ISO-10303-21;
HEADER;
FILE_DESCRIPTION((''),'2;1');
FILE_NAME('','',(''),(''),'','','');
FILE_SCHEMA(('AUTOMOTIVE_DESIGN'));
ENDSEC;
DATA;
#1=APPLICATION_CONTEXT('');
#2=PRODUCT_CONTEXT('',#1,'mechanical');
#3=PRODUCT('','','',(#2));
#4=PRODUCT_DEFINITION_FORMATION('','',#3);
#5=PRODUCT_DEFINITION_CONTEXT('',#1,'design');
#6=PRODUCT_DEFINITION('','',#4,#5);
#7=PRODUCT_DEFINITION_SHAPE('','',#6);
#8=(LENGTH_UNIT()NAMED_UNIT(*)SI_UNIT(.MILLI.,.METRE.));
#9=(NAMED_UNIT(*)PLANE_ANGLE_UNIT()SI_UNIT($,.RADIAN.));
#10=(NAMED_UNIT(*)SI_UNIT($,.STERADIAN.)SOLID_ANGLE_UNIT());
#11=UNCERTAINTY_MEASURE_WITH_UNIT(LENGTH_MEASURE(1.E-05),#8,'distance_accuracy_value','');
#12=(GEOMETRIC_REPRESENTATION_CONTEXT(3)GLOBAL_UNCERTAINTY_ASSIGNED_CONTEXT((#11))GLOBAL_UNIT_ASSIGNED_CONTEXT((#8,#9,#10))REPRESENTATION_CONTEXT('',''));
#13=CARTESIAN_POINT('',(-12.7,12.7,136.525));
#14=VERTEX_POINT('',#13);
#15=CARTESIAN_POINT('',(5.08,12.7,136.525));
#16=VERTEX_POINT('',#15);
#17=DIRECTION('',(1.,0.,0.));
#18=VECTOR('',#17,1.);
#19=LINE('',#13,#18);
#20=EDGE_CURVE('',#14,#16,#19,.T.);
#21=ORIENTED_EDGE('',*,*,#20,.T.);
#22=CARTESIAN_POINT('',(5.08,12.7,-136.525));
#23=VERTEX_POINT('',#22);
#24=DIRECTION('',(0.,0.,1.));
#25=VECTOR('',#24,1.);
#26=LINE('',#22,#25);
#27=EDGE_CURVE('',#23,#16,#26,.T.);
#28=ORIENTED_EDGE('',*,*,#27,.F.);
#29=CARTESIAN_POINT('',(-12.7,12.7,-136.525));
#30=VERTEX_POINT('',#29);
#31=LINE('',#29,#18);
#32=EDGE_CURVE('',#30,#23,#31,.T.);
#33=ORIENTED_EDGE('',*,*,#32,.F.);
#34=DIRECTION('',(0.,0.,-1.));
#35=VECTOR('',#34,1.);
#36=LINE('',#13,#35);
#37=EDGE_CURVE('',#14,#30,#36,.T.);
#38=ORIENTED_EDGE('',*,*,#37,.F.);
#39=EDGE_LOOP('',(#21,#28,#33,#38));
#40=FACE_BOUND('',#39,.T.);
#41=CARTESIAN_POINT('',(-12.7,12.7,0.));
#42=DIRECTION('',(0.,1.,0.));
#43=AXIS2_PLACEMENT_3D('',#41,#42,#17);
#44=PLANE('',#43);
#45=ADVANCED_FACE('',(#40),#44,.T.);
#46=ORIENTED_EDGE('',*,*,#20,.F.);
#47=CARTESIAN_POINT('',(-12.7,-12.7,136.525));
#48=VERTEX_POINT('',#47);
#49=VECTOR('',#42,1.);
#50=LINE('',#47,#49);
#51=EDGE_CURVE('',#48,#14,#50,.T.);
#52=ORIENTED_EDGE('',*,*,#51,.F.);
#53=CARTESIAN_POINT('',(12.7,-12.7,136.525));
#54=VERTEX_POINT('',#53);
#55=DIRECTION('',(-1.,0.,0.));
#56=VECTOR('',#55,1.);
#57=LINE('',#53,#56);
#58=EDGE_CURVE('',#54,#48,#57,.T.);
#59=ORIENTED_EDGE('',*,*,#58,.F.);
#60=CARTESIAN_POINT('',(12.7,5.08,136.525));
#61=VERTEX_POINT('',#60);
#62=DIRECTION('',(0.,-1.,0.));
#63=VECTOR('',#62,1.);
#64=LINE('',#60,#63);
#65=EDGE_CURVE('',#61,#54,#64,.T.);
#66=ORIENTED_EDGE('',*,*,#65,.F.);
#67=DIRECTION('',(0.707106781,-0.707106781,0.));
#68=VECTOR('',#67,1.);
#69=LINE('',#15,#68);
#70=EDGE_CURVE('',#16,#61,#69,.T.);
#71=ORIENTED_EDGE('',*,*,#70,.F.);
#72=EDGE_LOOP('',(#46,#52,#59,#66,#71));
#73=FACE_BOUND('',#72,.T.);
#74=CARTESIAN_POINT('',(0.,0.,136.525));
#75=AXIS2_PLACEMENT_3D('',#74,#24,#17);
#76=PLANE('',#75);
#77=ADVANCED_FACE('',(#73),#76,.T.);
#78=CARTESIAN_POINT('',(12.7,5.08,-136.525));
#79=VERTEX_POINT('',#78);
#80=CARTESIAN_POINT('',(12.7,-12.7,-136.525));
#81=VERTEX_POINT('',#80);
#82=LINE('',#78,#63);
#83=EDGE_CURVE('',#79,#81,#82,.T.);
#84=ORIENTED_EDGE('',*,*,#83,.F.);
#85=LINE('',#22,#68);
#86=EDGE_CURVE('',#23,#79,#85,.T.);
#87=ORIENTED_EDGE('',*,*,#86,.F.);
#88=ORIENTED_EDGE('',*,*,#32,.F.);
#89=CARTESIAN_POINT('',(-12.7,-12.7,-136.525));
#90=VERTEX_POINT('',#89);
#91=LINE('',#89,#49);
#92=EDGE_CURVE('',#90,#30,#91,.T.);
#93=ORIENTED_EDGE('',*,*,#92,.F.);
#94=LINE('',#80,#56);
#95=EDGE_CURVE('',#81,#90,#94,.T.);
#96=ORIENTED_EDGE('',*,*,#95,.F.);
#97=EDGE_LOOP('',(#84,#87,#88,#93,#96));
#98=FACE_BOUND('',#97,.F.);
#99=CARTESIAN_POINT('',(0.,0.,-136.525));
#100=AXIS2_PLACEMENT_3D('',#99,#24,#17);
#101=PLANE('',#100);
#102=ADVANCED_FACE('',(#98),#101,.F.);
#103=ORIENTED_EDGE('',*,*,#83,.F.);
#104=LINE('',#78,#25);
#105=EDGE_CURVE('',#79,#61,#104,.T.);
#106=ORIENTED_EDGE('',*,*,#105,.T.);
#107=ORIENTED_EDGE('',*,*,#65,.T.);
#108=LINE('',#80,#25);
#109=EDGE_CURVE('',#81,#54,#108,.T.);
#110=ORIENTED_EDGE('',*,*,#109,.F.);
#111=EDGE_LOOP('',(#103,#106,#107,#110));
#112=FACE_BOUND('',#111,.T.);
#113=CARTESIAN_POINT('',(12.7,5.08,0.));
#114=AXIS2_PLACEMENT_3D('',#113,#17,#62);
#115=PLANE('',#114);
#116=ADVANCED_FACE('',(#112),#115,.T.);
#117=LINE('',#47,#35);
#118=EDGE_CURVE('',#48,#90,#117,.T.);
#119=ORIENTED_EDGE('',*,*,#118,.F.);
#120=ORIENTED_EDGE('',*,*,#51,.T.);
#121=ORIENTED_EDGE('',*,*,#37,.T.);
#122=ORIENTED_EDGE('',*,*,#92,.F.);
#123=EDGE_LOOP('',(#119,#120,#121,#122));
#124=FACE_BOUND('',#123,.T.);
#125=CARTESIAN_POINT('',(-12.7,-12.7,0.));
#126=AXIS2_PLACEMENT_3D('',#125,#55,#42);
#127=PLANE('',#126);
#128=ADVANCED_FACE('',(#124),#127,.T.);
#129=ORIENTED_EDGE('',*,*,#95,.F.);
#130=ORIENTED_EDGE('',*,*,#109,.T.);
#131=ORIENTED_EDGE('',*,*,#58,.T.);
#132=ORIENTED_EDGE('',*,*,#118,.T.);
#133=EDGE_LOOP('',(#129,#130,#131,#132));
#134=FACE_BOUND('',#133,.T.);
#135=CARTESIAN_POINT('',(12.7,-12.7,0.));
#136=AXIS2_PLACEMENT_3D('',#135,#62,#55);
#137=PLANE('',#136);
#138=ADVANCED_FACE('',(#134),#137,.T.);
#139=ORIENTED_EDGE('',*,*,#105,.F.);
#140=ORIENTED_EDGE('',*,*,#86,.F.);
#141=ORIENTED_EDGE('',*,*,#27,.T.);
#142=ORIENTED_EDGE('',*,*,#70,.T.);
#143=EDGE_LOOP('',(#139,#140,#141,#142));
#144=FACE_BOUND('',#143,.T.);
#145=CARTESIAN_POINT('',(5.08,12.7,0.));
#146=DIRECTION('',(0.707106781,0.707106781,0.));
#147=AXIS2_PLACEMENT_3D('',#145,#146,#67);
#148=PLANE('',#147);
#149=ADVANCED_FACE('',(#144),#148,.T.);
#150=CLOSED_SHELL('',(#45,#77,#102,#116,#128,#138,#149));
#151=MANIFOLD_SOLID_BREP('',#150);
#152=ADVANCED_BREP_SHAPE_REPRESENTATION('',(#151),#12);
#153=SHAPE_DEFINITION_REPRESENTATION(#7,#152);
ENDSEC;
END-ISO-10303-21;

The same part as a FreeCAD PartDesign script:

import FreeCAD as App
import Part
import Sketcher
from FreeCAD import Vector
Q = App.Units.Quantity

doc = App.newDocument("Part")
body = doc.addObject("PartDesign::Body", "Body")

# Sketch on XY plane
sketch1 = doc.addObject("Sketcher::SketchObject", "Sketch")
body.addObject(sketch1)
sketch1.AttachmentSupport = (doc.XY_Plane, [""])
sketch1.MapMode = "FlatFace"
sketch1.addGeometry([
    Part.LineSegment(Vector(-13, -13, 0), Vector(13, -13, 0)),  # 0
    Part.LineSegment(Vector(13, -13, 0), Vector(13, 5, 0)),  # 1
    Part.LineSegment(Vector(13, 5, 0), Vector(5, 13, 0)),  # 2
    Part.LineSegment(Vector(5, 13, 0), Vector(-13, 13, 0)),  # 3
    Part.LineSegment(Vector(-13, 13, 0), Vector(-13, -13, 0)),  # 4
], False)
sketch1.addConstraint([
    Sketcher.Constraint("Coincident", 0, 2, 1, 1),
    Sketcher.Constraint("Coincident", 1, 2, 2, 1),
    Sketcher.Constraint("Coincident", 2, 2, 3, 1),
    Sketcher.Constraint("Coincident", 3, 2, 4, 1),
    Sketcher.Constraint("Coincident", 4, 2, 0, 1),
    Sketcher.Constraint("Horizontal", 0),
    Sketcher.Constraint("Vertical", 1),
    Sketcher.Constraint("Horizontal", 3),
    Sketcher.Constraint("Vertical", 4),
    Sketcher.Constraint("Symmetric", 0, 2, 3, 2, -1, 1),
    Sketcher.Constraint("Equal", 3, 1),
    Sketcher.Constraint("Equal", 0, 4),
    Sketcher.Constraint("DistanceX", 0, 1, 0, 2, Q("1 in")),
    Sketcher.Constraint("DistanceX", 2, 2, 1, 2, Q("0.3 in")),
])
pad1 = doc.addObject("PartDesign::Pad", "Pad")
body.addObject(pad1)
pad1.Profile = sketch1
pad1.Length = Q("10.75 in")
pad1.Midplane = True

doc.recompute()
